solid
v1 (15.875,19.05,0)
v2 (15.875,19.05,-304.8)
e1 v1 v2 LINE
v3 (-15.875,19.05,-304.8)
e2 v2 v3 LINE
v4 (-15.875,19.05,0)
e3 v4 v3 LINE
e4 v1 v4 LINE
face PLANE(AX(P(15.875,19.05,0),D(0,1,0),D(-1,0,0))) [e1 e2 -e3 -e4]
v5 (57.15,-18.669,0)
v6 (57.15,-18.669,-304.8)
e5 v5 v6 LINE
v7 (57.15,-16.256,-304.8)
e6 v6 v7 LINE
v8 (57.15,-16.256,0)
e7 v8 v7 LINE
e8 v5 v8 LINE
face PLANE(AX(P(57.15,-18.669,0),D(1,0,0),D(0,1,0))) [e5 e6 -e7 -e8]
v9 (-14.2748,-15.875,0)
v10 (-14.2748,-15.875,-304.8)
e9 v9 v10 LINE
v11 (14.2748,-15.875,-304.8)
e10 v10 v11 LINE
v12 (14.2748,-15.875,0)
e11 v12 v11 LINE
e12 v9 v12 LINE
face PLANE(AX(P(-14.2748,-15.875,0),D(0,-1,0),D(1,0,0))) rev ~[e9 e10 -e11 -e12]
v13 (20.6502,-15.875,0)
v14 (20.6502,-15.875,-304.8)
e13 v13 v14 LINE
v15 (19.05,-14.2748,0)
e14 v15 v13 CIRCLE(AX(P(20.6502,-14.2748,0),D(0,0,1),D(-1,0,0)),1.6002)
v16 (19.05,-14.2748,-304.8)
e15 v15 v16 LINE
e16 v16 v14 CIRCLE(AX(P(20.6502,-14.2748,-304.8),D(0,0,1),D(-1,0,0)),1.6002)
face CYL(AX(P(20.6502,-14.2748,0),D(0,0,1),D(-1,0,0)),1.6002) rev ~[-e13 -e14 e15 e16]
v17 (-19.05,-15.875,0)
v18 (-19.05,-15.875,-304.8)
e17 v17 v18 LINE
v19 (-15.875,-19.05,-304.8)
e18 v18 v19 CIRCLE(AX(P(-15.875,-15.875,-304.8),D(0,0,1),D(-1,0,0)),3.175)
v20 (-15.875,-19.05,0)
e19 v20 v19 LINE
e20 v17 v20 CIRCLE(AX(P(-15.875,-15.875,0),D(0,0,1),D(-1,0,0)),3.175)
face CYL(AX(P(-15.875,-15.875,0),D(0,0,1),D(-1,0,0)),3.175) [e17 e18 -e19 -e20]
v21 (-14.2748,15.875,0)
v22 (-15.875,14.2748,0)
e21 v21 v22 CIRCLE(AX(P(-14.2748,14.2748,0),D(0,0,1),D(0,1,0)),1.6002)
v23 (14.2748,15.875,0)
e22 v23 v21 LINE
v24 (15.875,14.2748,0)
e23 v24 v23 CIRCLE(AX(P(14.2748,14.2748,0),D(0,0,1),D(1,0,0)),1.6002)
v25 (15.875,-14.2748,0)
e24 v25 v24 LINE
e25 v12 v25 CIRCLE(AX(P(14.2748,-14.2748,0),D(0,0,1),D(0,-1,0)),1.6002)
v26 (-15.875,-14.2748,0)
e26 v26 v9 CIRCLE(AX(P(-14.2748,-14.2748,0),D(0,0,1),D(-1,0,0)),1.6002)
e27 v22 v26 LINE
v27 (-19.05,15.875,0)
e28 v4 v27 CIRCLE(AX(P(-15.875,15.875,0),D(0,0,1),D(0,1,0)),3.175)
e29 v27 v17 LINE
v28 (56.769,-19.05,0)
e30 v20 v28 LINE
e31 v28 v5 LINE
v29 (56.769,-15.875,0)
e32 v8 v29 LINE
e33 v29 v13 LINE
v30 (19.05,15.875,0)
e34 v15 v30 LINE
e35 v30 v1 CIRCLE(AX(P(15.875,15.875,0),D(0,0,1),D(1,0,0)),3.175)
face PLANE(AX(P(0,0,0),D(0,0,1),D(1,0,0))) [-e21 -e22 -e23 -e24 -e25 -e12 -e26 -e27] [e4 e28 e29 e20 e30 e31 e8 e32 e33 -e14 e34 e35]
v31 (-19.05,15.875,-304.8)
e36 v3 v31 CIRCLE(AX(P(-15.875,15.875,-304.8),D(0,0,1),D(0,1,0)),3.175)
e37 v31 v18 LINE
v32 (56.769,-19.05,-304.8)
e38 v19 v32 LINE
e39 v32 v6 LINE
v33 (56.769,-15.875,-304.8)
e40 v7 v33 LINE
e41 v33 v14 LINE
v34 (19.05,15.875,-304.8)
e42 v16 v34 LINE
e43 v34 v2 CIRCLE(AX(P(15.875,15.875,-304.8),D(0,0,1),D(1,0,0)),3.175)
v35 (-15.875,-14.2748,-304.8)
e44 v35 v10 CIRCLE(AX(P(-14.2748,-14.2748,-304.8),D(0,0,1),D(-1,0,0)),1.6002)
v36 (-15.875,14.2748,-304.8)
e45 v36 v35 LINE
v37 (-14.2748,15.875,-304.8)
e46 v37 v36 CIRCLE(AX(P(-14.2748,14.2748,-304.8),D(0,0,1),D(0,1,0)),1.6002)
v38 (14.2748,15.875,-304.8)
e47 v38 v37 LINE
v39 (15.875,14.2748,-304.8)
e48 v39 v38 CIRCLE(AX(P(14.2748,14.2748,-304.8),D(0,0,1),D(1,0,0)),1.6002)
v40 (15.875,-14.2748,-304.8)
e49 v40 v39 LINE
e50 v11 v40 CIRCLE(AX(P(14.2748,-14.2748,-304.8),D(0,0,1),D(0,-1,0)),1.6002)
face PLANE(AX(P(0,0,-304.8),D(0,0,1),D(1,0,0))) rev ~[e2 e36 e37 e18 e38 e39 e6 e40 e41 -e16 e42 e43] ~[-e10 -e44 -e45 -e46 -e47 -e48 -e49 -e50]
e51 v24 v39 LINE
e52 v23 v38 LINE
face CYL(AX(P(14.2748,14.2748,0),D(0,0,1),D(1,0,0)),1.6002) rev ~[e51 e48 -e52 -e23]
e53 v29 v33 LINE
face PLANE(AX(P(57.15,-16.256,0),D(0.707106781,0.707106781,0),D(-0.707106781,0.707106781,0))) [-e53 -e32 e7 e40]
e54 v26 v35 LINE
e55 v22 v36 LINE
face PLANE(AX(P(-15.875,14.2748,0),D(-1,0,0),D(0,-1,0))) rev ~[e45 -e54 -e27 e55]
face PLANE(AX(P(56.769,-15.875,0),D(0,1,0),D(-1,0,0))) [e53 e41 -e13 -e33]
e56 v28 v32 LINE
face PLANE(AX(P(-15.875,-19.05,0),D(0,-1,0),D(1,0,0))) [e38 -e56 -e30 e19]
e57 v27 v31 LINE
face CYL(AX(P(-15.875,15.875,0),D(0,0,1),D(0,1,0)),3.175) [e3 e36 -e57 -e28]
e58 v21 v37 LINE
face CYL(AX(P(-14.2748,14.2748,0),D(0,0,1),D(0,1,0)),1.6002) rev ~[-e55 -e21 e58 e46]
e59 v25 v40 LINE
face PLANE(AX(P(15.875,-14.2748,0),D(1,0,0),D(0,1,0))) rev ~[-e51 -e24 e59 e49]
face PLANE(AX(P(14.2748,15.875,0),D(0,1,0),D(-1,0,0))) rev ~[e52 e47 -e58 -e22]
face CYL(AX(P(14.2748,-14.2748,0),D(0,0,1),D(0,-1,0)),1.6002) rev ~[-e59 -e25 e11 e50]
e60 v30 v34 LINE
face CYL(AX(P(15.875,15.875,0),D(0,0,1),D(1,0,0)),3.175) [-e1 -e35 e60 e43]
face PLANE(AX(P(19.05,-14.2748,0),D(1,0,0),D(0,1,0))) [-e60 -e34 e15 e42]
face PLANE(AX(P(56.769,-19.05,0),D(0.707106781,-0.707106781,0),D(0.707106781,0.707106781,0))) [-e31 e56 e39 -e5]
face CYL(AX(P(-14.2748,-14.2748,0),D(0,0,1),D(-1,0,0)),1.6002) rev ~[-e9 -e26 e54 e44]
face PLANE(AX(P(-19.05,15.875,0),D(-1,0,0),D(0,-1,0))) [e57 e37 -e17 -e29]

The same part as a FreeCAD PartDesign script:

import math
import FreeCAD as App
import Part
import Sketcher
Q = App.Units.Quantity

doc = App.newDocument("Part")
body = doc.addObject("PartDesign::Body", "Body")

# Sketch on XY plane
sketch1 = body.newObject("Sketcher::SketchObject", "Sketch")
sketch1.AttachmentSupport = (doc.getObject("XY_Plane"), [""])
sketch1.MapMode = "FlatFace"
sketch1.addGeometry(Part.ArcOfCircle(Part.Circle(App.Vector(-15.875, -15.875, 0), App.Vector(0, 0, 1), 3.175), math.radians(180), math.radians(270)), False)
sketch1.addGeometry(Part.LineSegment(App.Vector(-15.875, -19.05, 0), App.Vector(56.769, -19.05, 0)), False)
sketch1.addGeometry(Part.LineSegment(App.Vector(56.769, -19.05, 0), App.Vector(57.15, -18.669, 0)), False)
sketch1.addGeometry(Part.LineSegment(App.Vector(57.15, -18.669, 0), App.Vector(57.15, -16.256, 0)), False)
sketch1.addGeometry(Part.LineSegment(App.Vector(57.15, -16.256, 0), App.Vector(56.769, -15.875, 0)), False)
sketch1.addGeometry(Part.LineSegment(App.Vector(56.769, -15.875, 0), App.Vector(20.6502, -15.875, 0)), False)
sketch1.addGeometry(Part.ArcOfCircle(Part.Circle(App.Vector(20.6502, -14.2748, 0), App.Vector(0, 0, 1), 1.6002), math.radians(180), math.radians(270)), False)
sketch1.addGeometry(Part.LineSegment(App.Vector(19.05, -14.2748, 0), App.Vector(19.05, 15.875, 0)), False)
sketch1.addGeometry(Part.ArcOfCircle(Part.Circle(App.Vector(15.875, 15.875, 0), App.Vector(0, 0, 1), 3.175), math.radians(0), math.radians(90)), False)
sketch1.addGeometry(Part.LineSegment(App.Vector(15.875, 19.05, 0), App.Vector(-15.875, 19.05, 0)), False)
sketch1.addGeometry(Part.ArcOfCircle(Part.Circle(App.Vector(-15.875, 15.875, 0), App.Vector(0, 0, 1), 3.175), math.radians(90), math.radians(180)), False)
sketch1.addGeometry(Part.LineSegment(App.Vector(-19.05, 15.875, 0), App.Vector(-19.05, -15.875, 0)), False)
sketch1.addGeometry(Part.ArcOfCircle(Part.Circle(App.Vector(14.2748, -14.2748, 0), App.Vector(0, 0, 1), 1.6002), math.radians(-90), math.radians(0)), False)
sketch1.addGeometry(Part.LineSegment(App.Vector(14.2748, -15.875, 0), App.Vector(-14.2748, -15.875, 0)), False)
sketch1.addGeometry(Part.ArcOfCircle(Part.Circle(App.Vector(-14.2748, -14.2748, 0), App.Vector(0, 0, 1), 1.6002), math.radians(180), math.radians(270)), False)
sketch1.addGeometry(Part.LineSegment(App.Vector(-15.875, -14.2748, 0), App.Vector(-15.875, 14.2748, 0)), False)
sketch1.addGeometry(Part.ArcOfCircle(Part.Circle(App.Vector(-14.2748, 14.2748, 0), App.Vector(0, 0, 1), 1.6002), math.radians(90), math.radians(180)), False)
sketch1.addGeometry(Part.LineSegment(App.Vector(-14.2748, 15.875, 0), App.Vector(14.2748, 15.875, 0)), False)
sketch1.addGeometry(Part.ArcOfCircle(Part.Circle(App.Vector(14.2748, 14.2748, 0), App.Vector(0, 0, 1), 1.6002), math.radians(0), math.radians(90)), False)
sketch1.addGeometry(Part.LineSegment(App.Vector(15.875, 14.2748, 0), App.Vector(15.875, -14.2748, 0)), False)
sketch1.addConstraint(Sketcher.Constraint("Tangent", 0, 2, 1, 1))
sketch1.addConstraint(Sketcher.Constraint("Coincident", 1, 2, 2, 1))
sketch1.addConstraint(Sketcher.Constraint("Coincident", 2, 2, 3, 1))
sketch1.addConstraint(Sketcher.Constraint("Coincident", 3, 2, 4, 1))
sketch1.addConstraint(Sketcher.Constraint("Coincident", 4, 2, 5, 1))
sketch1.addConstraint(Sketcher.Constraint("Tangent", 5, 2, 6, 2))
sketch1.addConstraint(Sketcher.Constraint("Tangent", 6, 1, 7, 1))
sketch1.addConstraint(Sketcher.Constraint("Tangent", 7, 2, 8, 1))
sketch1.addConstraint(Sketcher.Constraint("Tangent", 8, 2, 9, 1))
sketch1.addConstraint(Sketcher.Constraint("Tangent", 9, 2, 10, 1))
sketch1.addConstraint(Sketcher.Constraint("Tangent", 10, 2, 11, 1))
sketch1.addConstraint(Sketcher.Constraint("Tangent", 11, 2, 0, 1))
sketch1.addConstraint(Sketcher.Constraint("Tangent", 12, 1, 13, 1))
sketch1.addConstraint(Sketcher.Constraint("Tangent", 13, 2, 14, 2))
sketch1.addConstraint(Sketcher.Constraint("Tangent", 14, 1, 15, 1))
sketch1.addConstraint(Sketcher.Constraint("Tangent", 15, 2, 16, 2))
sketch1.addConstraint(Sketcher.Constraint("Tangent", 16, 1, 17, 1))
sketch1.addConstraint(Sketcher.Constraint("Tangent", 17, 2, 18, 2))
sketch1.addConstraint(Sketcher.Constraint("Tangent", 18, 1, 19, 1))
sketch1.addConstraint(Sketcher.Constraint("Tangent", 19, 2, 12, 2))
sketch1.addConstraint(Sketcher.Constraint("Horizontal", 1))
sketch1.addConstraint(Sketcher.Constraint("Vertical", 3))
sketch1.addConstraint(Sketcher.Constraint("Horizontal", 5))
sketch1.addConstraint(Sketcher.Constraint("Vertical", 7))
sketch1.addConstraint(Sketcher.Constraint("Horizontal", 9))
sketch1.addConstraint(Sketcher.Constraint("Vertical", 11))
sketch1.addConstraint(Sketcher.Constraint("Horizontal", 13))
sketch1.addConstraint(Sketcher.Constraint("Vertical", 15))
sketch1.addConstraint(Sketcher.Constraint("Horizontal", 17))
sketch1.addConstraint(Sketcher.Constraint("Vertical", 19))
sketch1.addConstraint(Sketcher.Constraint("Equal", 0, 8))
sketch1.addConstraint(Sketcher.Constraint("Equal", 8, 10))
sketch1.addConstraint(Sketcher.Constraint("Equal", 6, 12))
sketch1.addConstraint(Sketcher.Constraint("Equal", 12, 14))
sketch1.addConstraint(Sketcher.Constraint("Equal", 14, 16))
sketch1.addConstraint(Sketcher.Constraint("Equal", 16, 18))
sketch1.addConstraint(Sketcher.Constraint("Symmetric", 0, 3, 8, 3, -1, 1))
sketch1.addConstraint(Sketcher.Constraint("Symmetric", 12, 3, 16, 3, -1, 1))
sketch1.addConstraint(Sketcher.Constraint("Perpendicular", 2, 4))
sketch1.addConstraint(Sketcher.Constraint("Horizontal", 6, 3, 12, 3))
sketch1.addConstraint(Sketcher.Constraint("Horizontal", 0, 3, 4, 2))
sketch1.addConstraint(Sketcher.Constraint("Vertical", 1, 2, 4, 2))
sketch1.addConstraint(Sketcher.Constraint("Vertical", 9, 2, 14, 1))
sketch1.addConstraint(Sketcher.Constraint("Equal", 9, 11))
sketch1.addConstraint(Sketcher.Constraint("Equal", 2, 4))
sketch1.addConstraint(Sketcher.Constraint("Radius", 0, Q("0.125 in")))
sketch1.addConstraint(Sketcher.Constraint("Radius", 6, Q("0.063 in")))
sketch1.addConstraint(Sketcher.Constraint("DistanceX", 1, 1, 1, 2, Q("2.86 in")))
sketch1.addConstraint(Sketcher.Constraint("DistanceX", 9, 2, 9, 1, Q("1.25 in")))
sketch1.addConstraint(Sketcher.Constraint("DistanceY", 3, 1, 3, 2, Q("0.095 in")))
pad1 = body.newObject("PartDesign::Pad", "Pad")
pad1.Profile = sketch1
pad1.Length = Q("12 in")
pad1.Reversed = True

doc.recompute()
